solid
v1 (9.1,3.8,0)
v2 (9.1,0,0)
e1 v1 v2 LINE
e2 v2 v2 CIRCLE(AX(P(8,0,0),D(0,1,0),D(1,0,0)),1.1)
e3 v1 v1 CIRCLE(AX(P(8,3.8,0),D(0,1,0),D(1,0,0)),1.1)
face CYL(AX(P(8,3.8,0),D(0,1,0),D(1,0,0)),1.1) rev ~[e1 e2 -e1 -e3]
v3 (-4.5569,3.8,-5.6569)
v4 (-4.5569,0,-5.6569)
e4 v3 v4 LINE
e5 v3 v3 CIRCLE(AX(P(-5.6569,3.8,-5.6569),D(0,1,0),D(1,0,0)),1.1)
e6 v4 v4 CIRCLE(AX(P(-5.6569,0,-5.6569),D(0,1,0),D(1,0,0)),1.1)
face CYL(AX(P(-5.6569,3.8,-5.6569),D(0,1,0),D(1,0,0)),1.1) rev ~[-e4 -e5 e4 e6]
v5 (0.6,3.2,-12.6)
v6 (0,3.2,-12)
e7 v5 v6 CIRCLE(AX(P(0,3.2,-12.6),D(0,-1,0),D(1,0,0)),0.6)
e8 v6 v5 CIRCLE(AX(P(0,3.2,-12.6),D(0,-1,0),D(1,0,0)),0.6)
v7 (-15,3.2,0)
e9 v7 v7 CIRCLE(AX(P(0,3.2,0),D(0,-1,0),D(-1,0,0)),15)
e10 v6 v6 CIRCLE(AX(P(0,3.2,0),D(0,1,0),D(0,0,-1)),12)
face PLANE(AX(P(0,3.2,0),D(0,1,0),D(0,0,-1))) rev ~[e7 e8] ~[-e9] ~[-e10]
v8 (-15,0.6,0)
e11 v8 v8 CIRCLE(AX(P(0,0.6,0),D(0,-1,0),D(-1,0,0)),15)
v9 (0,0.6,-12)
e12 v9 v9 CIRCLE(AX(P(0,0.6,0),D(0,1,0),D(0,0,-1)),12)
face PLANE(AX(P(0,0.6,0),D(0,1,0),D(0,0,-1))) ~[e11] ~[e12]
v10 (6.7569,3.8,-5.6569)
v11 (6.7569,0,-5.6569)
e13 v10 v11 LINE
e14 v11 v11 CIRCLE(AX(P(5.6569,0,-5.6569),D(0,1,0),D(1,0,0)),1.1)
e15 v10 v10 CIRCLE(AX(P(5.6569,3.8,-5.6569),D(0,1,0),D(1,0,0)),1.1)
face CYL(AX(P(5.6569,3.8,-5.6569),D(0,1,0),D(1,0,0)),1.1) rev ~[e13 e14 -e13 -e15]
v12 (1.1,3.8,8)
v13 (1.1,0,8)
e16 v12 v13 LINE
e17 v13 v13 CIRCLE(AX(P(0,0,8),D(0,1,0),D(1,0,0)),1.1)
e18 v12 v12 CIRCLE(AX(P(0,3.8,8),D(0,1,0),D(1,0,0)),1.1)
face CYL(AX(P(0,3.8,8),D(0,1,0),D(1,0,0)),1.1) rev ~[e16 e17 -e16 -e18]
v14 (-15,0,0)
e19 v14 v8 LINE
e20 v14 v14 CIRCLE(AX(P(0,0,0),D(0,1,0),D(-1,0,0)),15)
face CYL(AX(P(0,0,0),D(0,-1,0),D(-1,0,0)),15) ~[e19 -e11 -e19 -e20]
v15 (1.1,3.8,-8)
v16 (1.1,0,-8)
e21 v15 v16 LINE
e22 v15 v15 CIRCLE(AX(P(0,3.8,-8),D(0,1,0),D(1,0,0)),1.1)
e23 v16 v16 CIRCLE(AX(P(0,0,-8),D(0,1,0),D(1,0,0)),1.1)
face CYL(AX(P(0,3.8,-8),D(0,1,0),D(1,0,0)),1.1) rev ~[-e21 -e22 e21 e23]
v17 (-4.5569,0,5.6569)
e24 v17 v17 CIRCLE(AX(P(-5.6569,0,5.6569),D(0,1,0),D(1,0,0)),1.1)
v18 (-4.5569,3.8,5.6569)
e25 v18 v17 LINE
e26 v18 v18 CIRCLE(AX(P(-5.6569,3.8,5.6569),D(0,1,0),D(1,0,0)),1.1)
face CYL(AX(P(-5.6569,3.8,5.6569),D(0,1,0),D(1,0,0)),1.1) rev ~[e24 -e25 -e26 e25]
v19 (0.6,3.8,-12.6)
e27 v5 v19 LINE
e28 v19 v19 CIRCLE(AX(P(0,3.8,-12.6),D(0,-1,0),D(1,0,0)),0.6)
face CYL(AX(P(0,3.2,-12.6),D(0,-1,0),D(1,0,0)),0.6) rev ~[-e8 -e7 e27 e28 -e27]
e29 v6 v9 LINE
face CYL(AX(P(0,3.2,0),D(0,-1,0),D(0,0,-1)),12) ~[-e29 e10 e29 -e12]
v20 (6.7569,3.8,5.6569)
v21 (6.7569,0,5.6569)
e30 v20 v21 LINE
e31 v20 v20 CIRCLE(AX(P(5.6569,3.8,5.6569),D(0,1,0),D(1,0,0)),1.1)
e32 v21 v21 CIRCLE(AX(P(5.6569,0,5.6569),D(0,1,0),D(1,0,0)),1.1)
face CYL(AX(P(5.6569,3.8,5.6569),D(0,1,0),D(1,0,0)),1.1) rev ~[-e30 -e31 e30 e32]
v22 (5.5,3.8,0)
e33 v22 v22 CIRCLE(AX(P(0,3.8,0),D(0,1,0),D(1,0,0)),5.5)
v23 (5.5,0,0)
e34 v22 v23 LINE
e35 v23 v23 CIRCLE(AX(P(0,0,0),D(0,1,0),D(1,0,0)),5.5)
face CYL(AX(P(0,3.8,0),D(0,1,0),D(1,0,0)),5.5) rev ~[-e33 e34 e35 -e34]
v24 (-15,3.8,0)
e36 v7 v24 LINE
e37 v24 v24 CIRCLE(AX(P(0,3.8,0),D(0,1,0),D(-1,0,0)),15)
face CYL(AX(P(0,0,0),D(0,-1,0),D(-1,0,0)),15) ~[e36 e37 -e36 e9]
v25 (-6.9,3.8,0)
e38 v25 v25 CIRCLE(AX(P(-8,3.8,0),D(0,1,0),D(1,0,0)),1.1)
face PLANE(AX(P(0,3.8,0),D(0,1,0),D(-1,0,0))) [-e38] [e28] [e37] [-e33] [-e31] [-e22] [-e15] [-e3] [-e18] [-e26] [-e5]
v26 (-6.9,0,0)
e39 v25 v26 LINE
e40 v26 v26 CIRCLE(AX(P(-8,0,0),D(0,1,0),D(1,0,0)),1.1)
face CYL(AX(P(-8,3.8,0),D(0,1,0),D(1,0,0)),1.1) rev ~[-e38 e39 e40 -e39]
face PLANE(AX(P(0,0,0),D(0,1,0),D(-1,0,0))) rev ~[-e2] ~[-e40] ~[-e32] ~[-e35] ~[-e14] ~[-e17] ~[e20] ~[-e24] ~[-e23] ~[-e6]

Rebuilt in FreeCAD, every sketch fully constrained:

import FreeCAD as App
import Part
import Sketcher
Q = App.Units.Quantity


def add_polygon(sketch, points):
    """Adds a closed chain of lines whose ends are joined by coincident constraints."""
    first, n = sketch.GeometryCount, len(points)
    for a, b in zip(points, points[1:] + points[:1]):
        sketch.addGeometry(Part.LineSegment(App.Vector(*a, 0), App.Vector(*b, 0)), False)
    for i in range(n):
        sketch.addConstraint(Sketcher.Constraint("Coincident", first + i, 2, first + (i + 1) % n, 1))

doc = App.newDocument("Part")
params = doc.addObject("Spreadsheet::Sheet", "Params")
for row, (alias, value) in enumerate([
    ("sketch1_diameter", "30 mm"),
    ("pad1_length", "3.8 mm"),
    ("sketch2_diameter", "11 mm"),
    ("sketch2_diameter2", "2.2 mm"),
    ("sketch3_height", "3 mm"),
    ("sketch3_width", "2.6 mm"),
    ("groove_angle", "360 deg"),
    ("sketch4_diameter", "1.2 mm"),
    ("pocket2_length", "0.6 mm"),
], start=1):
    params.set(f"A{row}", alias)
    params.set(f"B{row}", "=" + value)
    params.setAlias(f"B{row}", alias)

body = doc.addObject("PartDesign::Body", "Body")

sketch1 = body.newObject("Sketcher::SketchObject", "Sketch")
sketch1.AttachmentSupport = (doc.getObject("XZ_Plane"), [""])
sketch1.MapMode = "FlatFace"
sketch1.addGeometry(Part.Circle(App.Vector(0, 0, 0), App.Vector(0, 0, 1), 15), False)
sketch1.addConstraint(Sketcher.Constraint("Coincident", 0, 3, -1, 1))
sketch1.addConstraint(Sketcher.Constraint("Diameter", 0, Q("30 mm")))
sketch1.setExpression("Constraints[1]", "Params.sketch1_diameter")
pad1 = body.newObject("PartDesign::Pad", "Pad")
pad1.Profile = sketch1
pad1.setExpression("Length", "Params.pad1_length")
pad1.Reversed = True

sketch2 = body.newObject("Sketcher::SketchObject", "Sketch001")
sketch2.AttachmentSupport = (doc.getObject("XZ_Plane"), [""])
sketch2.MapMode = "FlatFace"
sketch2.AttachmentOffset = App.Placement(App.Vector(0, 0, -3.8), App.Rotation())
sketch2.addGeometry(Part.Circle(App.Vector(-8, 0, 0), App.Vector(0, 0, 1), 1.1), False)
sketch2.addGeometry(Part.Circle(App.Vector(-5.7, 5.7, 0), App.Vector(0, 0, 1), 1.1), False)
sketch2.addGeometry(Part.Circle(App.Vector(0, 8, 0), App.Vector(0, 0, 1), 1.1), False)
sketch2.addGeometry(Part.Circle(App.Vector(5.7, 5.7, 0), App.Vector(0, 0, 1), 1.1), False)
sketch2.addGeometry(Part.Circle(App.Vector(8, 0, 0), App.Vector(0, 0, 1), 1.1), False)
sketch2.addGeometry(Part.Circle(App.Vector(5.7, -5.7, 0), App.Vector(0, 0, 1), 1.1), False)
sketch2.addGeometry(Part.Circle(App.Vector(0, -8, 0), App.Vector(0, 0, 1), 1.1), False)
sketch2.addGeometry(Part.Circle(App.Vector(-5.7, -5.7, 0), App.Vector(0, 0, 1), 1.1), False)
sketch2.addGeometry(Part.Circle(App.Vector(0, 0, 0), App.Vector(0, 0, 1), 5.5), False)
sketch2.addConstraint(Sketcher.Constraint("Coincident", 8, 3, -1, 1))
sketch2.addConstraint(Sketcher.Constraint("Equal", 0, 1))
sketch2.addConstraint(Sketcher.Constraint("Equal", 1, 2))
sketch2.addConstraint(Sketcher.Constraint("Equal", 2, 3))
sketch2.addConstraint(Sketcher.Constraint("Equal", 3, 4))
sketch2.addConstraint(Sketcher.Constraint("Equal", 4, 5))
sketch2.addConstraint(Sketcher.Constraint("Equal", 5, 6))
sketch2.addConstraint(Sketcher.Constraint("Equal", 6, 7))
sketch2.addConstraint(Sketcher.Constraint("Symmetric", 0, 3, 4, 3, -1, 1))
sketch2.addConstraint(Sketcher.Constraint("Symmetric", 1, 3, 5, 3, -1, 1))
sketch2.addConstraint(Sketcher.Constraint("Symmetric", 2, 3, 6, 3, -1, 1))
sketch2.addConstraint(Sketcher.Constraint("Symmetric", 3, 3, 7, 3, -1, 1))
sketch2.addConstraint(Sketcher.Constraint("Symmetric", 1, 3, 3, 3, -2))
sketch2.addConstraint(Sketcher.Constraint("PointOnObject", 0, 3, -1))
sketch2.addConstraint(Sketcher.Constraint("PointOnObject", 2, 3, -2))
sketch2.addConstraint(Sketcher.Constraint("Diameter", 8, Q("11 mm")))
sketch2.addConstraint(Sketcher.Constraint("Diameter", 0, Q("2.2 mm")))
sketch2.addConstraint(Sketcher.Constraint("DistanceX", 0, 3, 4, 3, Q("16 mm")))
sketch2.addConstraint(Sketcher.Constraint("DistanceY", -1, 1, 2, 3, Q("8 mm")))
sketch2.addConstraint(Sketcher.Constraint("DistanceX", 1, 3, -1, 1, Q("5.657 mm")))
sketch2.addConstraint(Sketcher.Constraint("DistanceY", -1, 1, 1, 3, Q("5.657 mm")))
sketch2.setExpression("Constraints[15]", "Params.sketch2_diameter")
sketch2.setExpression("Constraints[16]", "Params.sketch2_diameter2")
pocket1 = body.newObject("PartDesign::Pocket", "Pocket")
pocket1.Profile = sketch2
pocket1.Type = "ThroughAll"
pocket1.Reversed = True

sketch3 = body.newObject("Sketcher::SketchObject", "Sketch002")
sketch3.AttachmentSupport = (doc.getObject("YZ_Plane"), [""])
sketch3.MapMode = "FlatFace"
add_polygon(sketch3, [(0.6, -12), (0.6, -15), (3.2, -15), (3.2, -12)])
sketch3.addConstraint(Sketcher.Constraint("Vertical", 0))
sketch3.addConstraint(Sketcher.Constraint("Horizontal", 1))
sketch3.addConstraint(Sketcher.Constraint("Vertical", 2))
sketch3.addConstraint(Sketcher.Constraint("Horizontal", 3))
sketch3.addConstraint(Sketcher.Constraint("DistanceY", 2, 2, -1, 1, Q("12 mm")))
sketch3.addConstraint(Sketcher.Constraint("DistanceX", -1, 1, 0, 2, Q("0.6 mm")))
sketch3.addConstraint(Sketcher.Constraint("DistanceY", 0, 2, 0, 1, Q("3 mm")))
sketch3.addConstraint(Sketcher.Constraint("DistanceX", 1, 1, 1, 2, Q("2.6 mm")))
sketch3.setExpression("Constraints[10]", "Params.sketch3_height")
sketch3.setExpression("Constraints[11]", "Params.sketch3_width")
groove = body.newObject("PartDesign::Groove", "Groove")
groove.Profile = sketch3
groove.ReferenceAxis = (sketch3, ["H_Axis"])
groove.setExpression("Angle", "Params.groove_angle")

sketch4 = body.newObject("Sketcher::SketchObject", "Sketch003")
sketch4.AttachmentSupport = (doc.getObject("XZ_Plane"), [""])
sketch4.MapMode = "FlatFace"
sketch4.AttachmentOffset = App.Placement(App.Vector(0, 0, -3.2), App.Rotation())
sketch4.addGeometry(Part.Circle(App.Vector(0, -12.6, 0), App.Vector(0, 0, 1), 0.6), False)
sketch4.addConstraint(Sketcher.Constraint("PointOnObject", 0, 3, -2))
sketch4.addConstraint(Sketcher.Constraint("Diameter", 0, Q("1.2 mm")))
sketch4.addConstraint(Sketcher.Constraint("DistanceY", 0, 3, -1, 1, Q("12.6 mm")))
sketch4.setExpression("Constraints[1]", "Params.sketch4_diameter")
pocket2 = body.newObject("PartDesign::Pocket", "Pocket001")
pocket2.Profile = sketch4
pocket2.setExpression("Length", "Params.pocket2_length")

doc.recompute()
